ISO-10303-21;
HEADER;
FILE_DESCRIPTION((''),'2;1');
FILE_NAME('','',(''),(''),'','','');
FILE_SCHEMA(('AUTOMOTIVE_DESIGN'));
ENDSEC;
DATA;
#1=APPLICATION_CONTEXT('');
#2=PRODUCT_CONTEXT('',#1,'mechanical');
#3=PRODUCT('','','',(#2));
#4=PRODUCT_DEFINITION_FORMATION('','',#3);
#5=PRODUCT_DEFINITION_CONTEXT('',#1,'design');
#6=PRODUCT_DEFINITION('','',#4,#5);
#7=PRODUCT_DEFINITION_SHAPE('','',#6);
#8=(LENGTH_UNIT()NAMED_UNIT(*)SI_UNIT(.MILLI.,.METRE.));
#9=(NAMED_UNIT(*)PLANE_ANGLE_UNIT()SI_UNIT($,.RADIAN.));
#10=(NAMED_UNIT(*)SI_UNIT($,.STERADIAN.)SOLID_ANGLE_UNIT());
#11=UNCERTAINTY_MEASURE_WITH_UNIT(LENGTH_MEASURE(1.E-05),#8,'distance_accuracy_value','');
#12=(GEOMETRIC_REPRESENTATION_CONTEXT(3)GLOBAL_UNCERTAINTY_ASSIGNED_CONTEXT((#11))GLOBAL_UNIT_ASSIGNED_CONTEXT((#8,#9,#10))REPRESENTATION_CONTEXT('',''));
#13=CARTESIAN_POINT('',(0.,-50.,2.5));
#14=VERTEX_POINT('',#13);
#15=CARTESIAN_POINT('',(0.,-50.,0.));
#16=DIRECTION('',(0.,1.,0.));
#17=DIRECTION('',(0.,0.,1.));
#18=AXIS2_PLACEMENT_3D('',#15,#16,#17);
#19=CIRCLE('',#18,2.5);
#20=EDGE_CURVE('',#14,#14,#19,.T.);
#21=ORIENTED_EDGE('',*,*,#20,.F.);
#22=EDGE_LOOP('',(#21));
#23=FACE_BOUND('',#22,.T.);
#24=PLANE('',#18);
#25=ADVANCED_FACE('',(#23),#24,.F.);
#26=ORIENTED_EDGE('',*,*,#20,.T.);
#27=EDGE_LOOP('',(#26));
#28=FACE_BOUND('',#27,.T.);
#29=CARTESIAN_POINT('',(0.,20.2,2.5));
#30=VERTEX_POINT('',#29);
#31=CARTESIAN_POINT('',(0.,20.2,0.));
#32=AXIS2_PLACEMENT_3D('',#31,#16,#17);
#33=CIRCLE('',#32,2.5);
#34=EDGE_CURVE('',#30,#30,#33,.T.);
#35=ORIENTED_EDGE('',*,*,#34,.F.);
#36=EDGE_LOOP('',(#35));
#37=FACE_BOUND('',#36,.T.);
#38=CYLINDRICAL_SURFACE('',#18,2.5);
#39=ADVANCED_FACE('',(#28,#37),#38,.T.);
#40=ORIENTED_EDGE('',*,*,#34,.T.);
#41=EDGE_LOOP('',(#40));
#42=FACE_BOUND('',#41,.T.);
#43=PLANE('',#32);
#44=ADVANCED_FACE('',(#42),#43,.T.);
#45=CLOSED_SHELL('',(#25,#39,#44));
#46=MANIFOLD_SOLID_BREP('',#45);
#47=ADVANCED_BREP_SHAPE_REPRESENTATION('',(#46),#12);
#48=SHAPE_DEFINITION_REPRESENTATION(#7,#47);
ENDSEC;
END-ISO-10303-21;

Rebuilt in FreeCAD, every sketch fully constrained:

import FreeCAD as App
import Part
import Sketcher
from FreeCAD import Vector
Q = App.Units.Quantity

doc = App.newDocument("Part")
body = doc.addObject("PartDesign::Body", "Body")

sketch1 = doc.addObject("Sketcher::SketchObject", "Sketch")
body.addObject(sketch1)
sketch1.AttachmentSupport = (doc.XZ_Plane, [""])
sketch1.MapMode = "FlatFace"
sketch1.addGeometry(Part.Circle(Vector(0, 0, 0), Vector(0, 0, 1), 2.5), False)
sketch1.addConstraint(Sketcher.Constraint("Coincident", 0, 3, -1, 1))
sketch1.addConstraint(Sketcher.Constraint("Diameter", 0, Q("5 mm")))
pad1 = doc.addObject("PartDesign::Pad", "Pad")
body.addObject(pad1)
pad1.Profile = sketch1
pad1.Type = "TwoLengths"
pad1.Length = 20.2
pad1.Length2 = 50
pad1.Reversed = True

doc.recompute()
